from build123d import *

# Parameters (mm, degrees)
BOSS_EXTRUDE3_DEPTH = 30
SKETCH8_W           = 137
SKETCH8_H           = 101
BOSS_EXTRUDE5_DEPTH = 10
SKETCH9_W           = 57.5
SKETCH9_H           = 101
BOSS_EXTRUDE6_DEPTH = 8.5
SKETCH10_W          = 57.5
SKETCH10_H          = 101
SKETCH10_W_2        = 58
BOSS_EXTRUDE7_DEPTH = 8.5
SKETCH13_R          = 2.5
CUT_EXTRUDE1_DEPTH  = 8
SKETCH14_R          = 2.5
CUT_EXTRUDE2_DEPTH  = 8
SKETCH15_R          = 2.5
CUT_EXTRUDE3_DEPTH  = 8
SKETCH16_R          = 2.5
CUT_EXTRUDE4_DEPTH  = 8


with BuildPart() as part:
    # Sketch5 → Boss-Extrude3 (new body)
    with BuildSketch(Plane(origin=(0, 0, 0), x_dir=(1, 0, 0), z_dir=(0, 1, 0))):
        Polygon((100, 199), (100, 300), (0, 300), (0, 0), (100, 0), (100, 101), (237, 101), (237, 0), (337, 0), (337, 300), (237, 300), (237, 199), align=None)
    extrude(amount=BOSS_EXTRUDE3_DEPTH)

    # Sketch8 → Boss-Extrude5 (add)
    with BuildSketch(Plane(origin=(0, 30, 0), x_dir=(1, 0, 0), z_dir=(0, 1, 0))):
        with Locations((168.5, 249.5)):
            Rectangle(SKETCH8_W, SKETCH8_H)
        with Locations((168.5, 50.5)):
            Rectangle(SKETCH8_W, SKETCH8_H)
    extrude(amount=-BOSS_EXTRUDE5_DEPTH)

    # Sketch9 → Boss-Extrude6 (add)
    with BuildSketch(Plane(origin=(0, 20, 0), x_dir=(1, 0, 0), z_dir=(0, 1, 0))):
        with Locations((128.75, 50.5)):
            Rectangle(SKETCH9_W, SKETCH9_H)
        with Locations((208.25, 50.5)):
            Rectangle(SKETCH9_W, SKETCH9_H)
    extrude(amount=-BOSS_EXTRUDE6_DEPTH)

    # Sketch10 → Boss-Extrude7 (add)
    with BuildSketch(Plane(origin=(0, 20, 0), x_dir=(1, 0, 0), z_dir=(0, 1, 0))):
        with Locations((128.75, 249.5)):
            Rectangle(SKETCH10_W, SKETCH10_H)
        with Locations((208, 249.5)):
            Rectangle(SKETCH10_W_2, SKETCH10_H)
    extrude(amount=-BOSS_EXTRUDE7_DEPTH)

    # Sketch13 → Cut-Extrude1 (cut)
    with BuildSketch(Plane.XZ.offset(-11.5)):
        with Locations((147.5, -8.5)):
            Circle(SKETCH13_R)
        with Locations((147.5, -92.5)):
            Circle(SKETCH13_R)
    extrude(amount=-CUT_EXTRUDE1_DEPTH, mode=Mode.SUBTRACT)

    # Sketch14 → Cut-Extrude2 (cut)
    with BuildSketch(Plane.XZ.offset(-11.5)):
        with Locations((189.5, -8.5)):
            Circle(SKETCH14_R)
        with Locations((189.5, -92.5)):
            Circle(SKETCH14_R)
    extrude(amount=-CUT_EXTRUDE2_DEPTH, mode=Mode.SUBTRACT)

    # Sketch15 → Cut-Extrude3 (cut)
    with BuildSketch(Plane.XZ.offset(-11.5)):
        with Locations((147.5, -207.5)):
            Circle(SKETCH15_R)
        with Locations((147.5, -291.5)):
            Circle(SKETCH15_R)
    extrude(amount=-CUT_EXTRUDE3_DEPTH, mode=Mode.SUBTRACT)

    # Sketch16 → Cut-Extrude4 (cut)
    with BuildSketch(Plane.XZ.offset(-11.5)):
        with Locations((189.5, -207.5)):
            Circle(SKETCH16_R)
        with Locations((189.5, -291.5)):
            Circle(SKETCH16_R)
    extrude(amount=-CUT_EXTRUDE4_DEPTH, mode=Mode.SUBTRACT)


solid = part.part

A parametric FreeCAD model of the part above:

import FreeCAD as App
import Part
import Sketcher

V = App.Vector
Q = App.Units.Quantity

doc = App.newDocument("Part")
body = doc.addObject("PartDesign::Body", "Body")

# Sketch on XZ plane
sketch1 = body.newObject("Sketcher::SketchObject", "Sketch")
sketch1.AttachmentSupport = (doc.getObject("XZ_Plane"), [""])
sketch1.MapMode = "FlatFace"
sketch1.addGeometry(Part.LineSegment(V(100, -199, 0), V(100, -300, 0)), False)
sketch1.addGeometry(Part.LineSegment(V(100, -300, 0), V(0, -300, 0)), False)
sketch1.addGeometry(Part.LineSegment(V(0, -300, 0), V(0, 0, 0)), False)
sketch1.addGeometry(Part.LineSegment(V(0, 0, 0), V(100, 0, 0)), False)
sketch1.addGeometry(Part.LineSegment(V(100, 0, 0), V(100, -101, 0)), False)
sketch1.addGeometry(Part.LineSegment(V(100, -101, 0), V(237, -101, 0)), False)
sketch1.addGeometry(Part.LineSegment(V(237, -101, 0), V(237, 0, 0)), False)
sketch1.addGeometry(Part.LineSegment(V(237, 0, 0), V(337, 0, 0)), False)
sketch1.addGeometry(Part.LineSegment(V(337, 0, 0), V(337, -300, 0)), False)
sketch1.addGeometry(Part.LineSegment(V(337, -300, 0), V(237, -300, 0)), False)
sketch1.addGeometry(Part.LineSegment(V(237, -300, 0), V(237, -199, 0)), False)
sketch1.addGeometry(Part.LineSegment(V(237, -199, 0), V(100, -199, 0)), False)
sketch1.addConstraint(Sketcher.Constraint("Coincident", 0, 2, 1, 1))
sketch1.addConstraint(Sketcher.Constraint("Coincident", 1, 2, 2, 1))
sketch1.addConstraint(Sketcher.Constraint("Coincident", 2, 2, 3, 1))
sketch1.addConstraint(Sketcher.Constraint("Coincident", 3, 2, 4, 1))
sketch1.addConstraint(Sketcher.Constraint("Coincident", 4, 2, 5, 1))
sketch1.addConstraint(Sketcher.Constraint("Coincident", 5, 2, 6, 1))
sketch1.addConstraint(Sketcher.Constraint("Coincident", 6, 2, 7, 1))
sketch1.addConstraint(Sketcher.Constraint("Coincident", 7, 2, 8, 1))
sketch1.addConstraint(Sketcher.Constraint("Coincident", 8, 2, 9, 1))
sketch1.addConstraint(Sketcher.Constraint("Coincident", 9, 2, 10, 1))
sketch1.addConstraint(Sketcher.Constraint("Coincident", 10, 2, 11, 1))
sketch1.addConstraint(Sketcher.Constraint("Coincident", 11, 2, 0, 1))
sketch1.addConstraint(Sketcher.Constraint("Vertical", 0))
sketch1.addConstraint(Sketcher.Constraint("Horizontal", 1))
sketch1.addConstraint(Sketcher.Constraint("Vertical", 2))
sketch1.addConstraint(Sketcher.Constraint("Horizontal", 3))
sketch1.addConstraint(Sketcher.Constraint("Vertical", 4))
sketch1.addConstraint(Sketcher.Constraint("Horizontal", 5))
sketch1.addConstraint(Sketcher.Constraint("Vertical", 6))
sketch1.addConstraint(Sketcher.Constraint("Horizontal", 7))
sketch1.addConstraint(Sketcher.Constraint("Vertical", 8))
sketch1.addConstraint(Sketcher.Constraint("Horizontal", 9))
sketch1.addConstraint(Sketcher.Constraint("Vertical", 10))
sketch1.addConstraint(Sketcher.Constraint("Horizontal", 11))
sketch1.addConstraint(Sketcher.Constraint("Coincident", 2, 2, -1, 1))
sketch1.addConstraint(Sketcher.Constraint("PointOnObject", 6, 2, -1))
sketch1.addConstraint(Sketcher.Constraint("Horizontal", 1, 2, 8, 2))
sketch1.addConstraint(Sketcher.Constraint("Vertical", 0, 2, 3, 2))
sketch1.addConstraint(Sketcher.Constraint("Vertical", 6, 2, 9, 2))
sketch1.addConstraint(Sketcher.Constraint("Equal", 3, 7))
sketch1.addConstraint(Sketcher.Constraint("Equal", 0, 4))
sketch1.addConstraint(Sketcher.Constraint("DistanceX", 1, 2, 1, 1, Q("100 mm")))
sketch1.addConstraint(Sketcher.Constraint("DistanceX", 5, 1, 5, 2, Q("137 mm")))
sketch1.addConstraint(Sketcher.Constraint("DistanceY", 0, 2, 0, 1, Q("101 mm")))
sketch1.addConstraint(Sketcher.Constraint("DistanceY", 2, 1, 2, 2, Q("300 mm")))
pad1 = body.newObject("PartDesign::Pad", "Pad")
pad1.Profile = sketch1
pad1.Length = 30
pad1.Reversed = True

# Sketch on XZ plane
sketch2 = body.newObject("Sketcher::SketchObject", "Sketch001")
sketch2.AttachmentSupport = (doc.getObject("XZ_Plane"), [""])
sketch2.MapMode = "FlatFace"
sketch2.AttachmentOffset = App.Placement(V(0, 0, -30), App.Rotation())
sketch2.addGeometry(Part.LineSegment(V(100, -300, 0), V(100, -199, 0)), False)
sketch2.addGeometry(Part.LineSegment(V(100, -199, 0), V(237, -199, 0)), False)
sketch2.addGeometry(Part.LineSegment(V(237, -199, 0), V(237, -300, 0)), False)
sketch2.addGeometry(Part.LineSegment(V(237, -300, 0), V(100, -300, 0)), False)
sketch2.addGeometry(Part.LineSegment(V(100, -101, 0), V(100, 0, 0)), False)
sketch2.addGeometry(Part.LineSegment(V(100, 0, 0), V(237, 0, 0)), False)
sketch2.addGeometry(Part.LineSegment(V(237, 0, 0), V(237, -101, 0)), False)
sketch2.addGeometry(Part.LineSegment(V(237, -101, 0), V(100, -101, 0)), False)
sketch2.addConstraint(Sketcher.Constraint("Coincident", 0, 2, 1, 1))
sketch2.addConstraint(Sketcher.Constraint("Coincident", 1, 2, 2, 1))
sketch2.addConstraint(Sketcher.Constraint("Coincident", 2, 2, 3, 1))
sketch2.addConstraint(Sketcher.Constraint("Coincident", 3, 2, 0, 1))
sketch2.addConstraint(Sketcher.Constraint("Coincident", 4, 2, 5, 1))
sketch2.addConstraint(Sketcher.Constraint("Coincident", 5, 2, 6, 1))
sketch2.addConstraint(Sketcher.Constraint("Coincident", 6, 2, 7, 1))
sketch2.addConstraint(Sketcher.Constraint("Coincident", 7, 2, 4, 1))
sketch2.addConstraint(Sketcher.Constraint("Vertical", 0))
sketch2.addConstraint(Sketcher.Constraint("Horizontal", 1))
sketch2.addConstraint(Sketcher.Constraint("Vertical", 2))
sketch2.addConstraint(Sketcher.Constraint("Horizontal", 3))
sketch2.addConstraint(Sketcher.Constraint("Vertical", 4))
sketch2.addConstraint(Sketcher.Constraint("Horizontal", 5))
sketch2.addConstraint(Sketcher.Constraint("Vertical", 6))
sketch2.addConstraint(Sketcher.Constraint("Horizontal", 7))
sketch2.addConstraint(Sketcher.Constraint("PointOnObject", 4, 2, -1))
sketch2.addConstraint(Sketcher.Constraint("Vertical", 3, 2, 4, 2))
sketch2.addConstraint(Sketcher.Constraint("Vertical", 2, 2, 5, 2))
sketch2.addConstraint(Sketcher.Constraint("Equal", 2, 4))
sketch2.addConstraint(Sketcher.Constraint("DistanceX", 1, 1, 1, 2, Q("137 mm")))
sketch2.addConstraint(Sketcher.Constraint("DistanceY", 0, 1, 0, 2, Q("101 mm")))
sketch2.addConstraint(Sketcher.Constraint("DistanceX", -1, 1, 0, 2, Q("100 mm")))
sketch2.addConstraint(Sketcher.Constraint("DistanceY", 0, 2, -1, 1, Q("199 mm")))
pad2 = body.newObject("PartDesign::Pad", "Pad001")
pad2.Profile = sketch2
pad2.Length = 10

# Sketch on XZ plane
sketch3 = body.newObject("Sketcher::SketchObject", "Sketch002")
sketch3.AttachmentSupport = (doc.getObject("XZ_Plane"), [""])
sketch3.MapMode = "FlatFace"
sketch3.AttachmentOffset = App.Placement(V(0, 0, -20), App.Rotation())
sketch3.addGeometry(Part.LineSegment(V(100, -101, 0), V(100, 0, 0)), False)
sketch3.addGeometry(Part.LineSegment(V(100, 0, 0), V(158, 0, 0)), False)
sketch3.addGeometry(Part.LineSegment(V(158, 0, 0), V(158, -101, 0)), False)
sketch3.addGeometry(Part.LineSegment(V(158, -101, 0), V(100, -101, 0)), False)
sketch3.addGeometry(Part.LineSegment(V(180, -101, 0), V(180, 0, 0)), False)
sketch3.addGeometry(Part.LineSegment(V(180, 0, 0), V(237, 0, 0)), False)
sketch3.addGeometry(Part.LineSegment(V(237, 0, 0), V(237, -101, 0)), False)
sketch3.addGeometry(Part.LineSegment(V(237, -101, 0), V(180, -101, 0)), False)
sketch3.addConstraint(Sketcher.Constraint("Coincident", 0, 2, 1, 1))
sketch3.addConstraint(Sketcher.Constraint("Coincident", 1, 2, 2, 1))
sketch3.addConstraint(Sketcher.Constraint("Coincident", 2, 2, 3, 1))
sketch3.addConstraint(Sketcher.Constraint("Coincident", 3, 2, 0, 1))
sketch3.addConstraint(Sketcher.Constraint("Coincident", 4, 2, 5, 1))
sketch3.addConstraint(Sketcher.Constraint("Coincident", 5, 2, 6, 1))
sketch3.addConstraint(Sketcher.Constraint("Coincident", 6, 2, 7, 1))
sketch3.addConstraint(Sketcher.Constraint("Coincident", 7, 2, 4, 1))
sketch3.addConstraint(Sketcher.Constraint("Vertical", 0))
sketch3.addConstraint(Sketcher.Constraint("Horizontal", 1))
sketch3.addConstraint(Sketcher.Constraint("Vertical", 2))
sketch3.addConstraint(Sketcher.Constraint("Horizontal", 3))
sketch3.addConstraint(Sketcher.Constraint("Vertical", 4))
sketch3.addConstraint(Sketcher.Constraint("Horizontal", 5))
sketch3.addConstraint(Sketcher.Constraint("Vertical", 6))
sketch3.addConstraint(Sketcher.Constraint("Horizontal", 7))
sketch3.addConstraint(Sketcher.Constraint("PointOnObject", 0, 2, -1))
sketch3.addConstraint(Sketcher.Constraint("PointOnObject", 4, 2, -1))
sketch3.addConstraint(Sketcher.Constraint("Horizontal", 3, 2, 6, 2))
sketch3.addConstraint(Sketcher.Constraint("Equal", 3, 5))
sketch3.addConstraint(Sketcher.Constraint("DistanceY", 0, 1, 0, 2, Q("101 mm")))
sketch3.addConstraint(Sketcher.Constraint("DistanceX", 1, 1, 1, 2, Q("57.5 mm")))
sketch3.addConstraint(Sketcher.Constraint("DistanceX", -1, 1, 0, 2, Q("100 mm")))
sketch3.addConstraint(Sketcher.Constraint("DistanceX", -1, 1, 5, 2, Q("237 mm")))
pad3 = body.newObject("PartDesign::Pad", "Pad002")
pad3.Profile = sketch3
pad3.Length = 8.5

# Sketch on XZ plane
sketch4 = body.newObject("Sketcher::SketchObject", "Sketch003")
sketch4.AttachmentSupport = (doc.getObject("XZ_Plane"), [""])
sketch4.MapMode = "FlatFace"
sketch4.AttachmentOffset = App.Placement(V(0, 0, -20), App.Rotation())
sketch4.addGeometry(Part.LineSegment(V(100, -300, 0), V(100, -199, 0)), False)
sketch4.addGeometry(Part.LineSegment(V(100, -199, 0), V(158, -199, 0)), False)
sketch4.addGeometry(Part.LineSegment(V(158, -199, 0), V(158, -300, 0)), False)
sketch4.addGeometry(Part.LineSegment(V(158, -300, 0), V(100, -300, 0)), False)
sketch4.addGeometry(Part.LineSegment(V(179, -300, 0), V(179, -199, 0)), False)
sketch4.addGeometry(Part.LineSegment(V(179, -199, 0), V(237, -199, 0)), False)
sketch4.addGeometry(Part.LineSegment(V(237, -199, 0), V(237, -300, 0)), False)
sketch4.addGeometry(Part.LineSegment(V(237, -300, 0), V(179, -300, 0)), False)
sketch4.addConstraint(Sketcher.Constraint("Coincident", 0, 2, 1, 1))
sketch4.addConstraint(Sketcher.Constraint("Coincident", 1, 2, 2, 1))
sketch4.addConstraint(Sketcher.Constraint("Coincident", 2, 2, 3, 1))
sketch4.addConstraint(Sketcher.Constraint("Coincident", 3, 2, 0, 1))
sketch4.addConstraint(Sketcher.Constraint("Coincident", 4, 2, 5, 1))
sketch4.addConstraint(Sketcher.Constraint("Coincident", 5, 2, 6, 1))
sketch4.addConstraint(Sketcher.Constraint("Coincident", 6, 2, 7, 1))
sketch4.addConstraint(Sketcher.Constraint("Coincident", 7, 2, 4, 1))
sketch4.addConstraint(Sketcher.Constraint("Vertical", 0))
sketch4.addConstraint(Sketcher.Constraint("Horizontal", 1))
sketch4.addConstraint(Sketcher.Constraint("Vertical", 2))
sketch4.addConstraint(Sketcher.Constraint("Horizontal", 3))
sketch4.addConstraint(Sketcher.Constraint("Vertical", 4))
sketch4.addConstraint(Sketcher.Constraint("Horizontal", 5))
sketch4.addConstraint(Sketcher.Constraint("Vertical", 6))
sketch4.addConstraint(Sketcher.Constraint("Horizontal", 7))
sketch4.addConstraint(Sketcher.Constraint("Horizontal", 1, 2, 4, 2))
sketch4.addConstraint(Sketcher.Constraint("Horizontal", 3, 2, 6, 2))
sketch4.addConstraint(Sketcher.Constraint("DistanceX", 5, 1, 5, 2, Q("58 mm")))
sketch4.addConstraint(Sketcher.Constraint("DistanceY", 0, 1, 0, 2, Q("101 mm")))
sketch4.addConstraint(Sketcher.Constraint("DistanceX", 1, 1, 1, 2, Q("57.5 mm")))
sketch4.addConstraint(Sketcher.Constraint("DistanceX", -1, 1, 0, 2, Q("100 mm")))
sketch4.addConstraint(Sketcher.Constraint("DistanceY", 0, 2, -1, 1, Q("199 mm")))
sketch4.addConstraint(Sketcher.Constraint("DistanceX", -1, 1, 4, 2, Q("179 mm")))
pad4 = body.newObject("PartDesign::Pad", "Pad003")
pad4.Profile = sketch4
pad4.Length = 8.5

# Sketch on XZ plane
sketch5 = body.newObject("Sketcher::SketchObject", "Sketch004")
sketch5.AttachmentSupport = (doc.getObject("XZ_Plane"), [""])
sketch5.MapMode = "FlatFace"
sketch5.AttachmentOffset = App.Placement(V(0, 0, -11.5), App.Rotation())
sketch5.addGeometry(Part.Circle(V(147.5, -8.5, 0), V(0, 0, 1), 2.5), False)
sketch5.addGeometry(Part.Circle(V(147.5, -92.5, 0), V(0, 0, 1), 2.5), False)
sketch5.addConstraint(Sketcher.Constraint("Equal", 0, 1))
sketch5.addConstraint(Sketcher.Constraint("Vertical", 0, 3, 1, 3))
sketch5.addConstraint(Sketcher.Constraint("Diameter", 0, Q("5 mm")))
sketch5.addConstraint(Sketcher.Constraint("DistanceY", 1, 3, 0, 3, Q("84 mm")))
sketch5.addConstraint(Sketcher.Constraint("DistanceX", -1, 1, 0, 3, Q("147.5 mm")))
sketch5.addConstraint(Sketcher.Constraint("DistanceY", 0, 3, -1, 1, Q("8.5 mm")))
pocket1 = body.newObject("PartDesign::Pocket", "Pocket")
pocket1.Profile = sketch5
pocket1.Length = 8

# Sketch on XZ plane
sketch6 = body.newObject("Sketcher::SketchObject", "Sketch005")
sketch6.AttachmentSupport = (doc.getObject("XZ_Plane"), [""])
sketch6.MapMode = "FlatFace"
sketch6.AttachmentOffset = App.Placement(V(0, 0, -11.5), App.Rotation())
sketch6.addGeometry(Part.Circle(V(189.5, -8.5, 0), V(0, 0, 1), 2.5), False)
sketch6.addGeometry(Part.Circle(V(189.5, -92.5, 0), V(0, 0, 1), 2.5), False)
sketch6.addConstraint(Sketcher.Constraint("Equal", 0, 1))
sketch6.addConstraint(Sketcher.Constraint("Vertical", 0, 3, 1, 3))
sketch6.addConstraint(Sketcher.Constraint("Diameter", 0, Q("5 mm")))
sketch6.addConstraint(Sketcher.Constraint("DistanceY", 1, 3, 0, 3, Q("84 mm")))
sketch6.addConstraint(Sketcher.Constraint("DistanceX", -1, 1, 0, 3, Q("189.5 mm")))
sketch6.addConstraint(Sketcher.Constraint("DistanceY", 0, 3, -1, 1, Q("8.5 mm")))
pocket2 = body.newObject("PartDesign::Pocket", "Pocket001")
pocket2.Profile = sketch6
pocket2.Length = 8

# Sketch on XZ plane
sketch7 = body.newObject("Sketcher::SketchObject", "Sketch006")
sketch7.AttachmentSupport = (doc.getObject("XZ_Plane"), [""])
sketch7.MapMode = "FlatFace"
sketch7.AttachmentOffset = App.Placement(V(0, 0, -11.5), App.Rotation())
sketch7.addGeometry(Part.Circle(V(147.5, -207.5, 0), V(0, 0, 1), 2.5), False)
sketch7.addGeometry(Part.Circle(V(147.5, -291.5, 0), V(0, 0, 1), 2.5), False)
sketch7.addConstraint(Sketcher.Constraint("Equal", 0, 1))
sketch7.addConstraint(Sketcher.Constraint("Vertical", 0, 3, 1, 3))
sketch7.addConstraint(Sketcher.Constraint("Diameter", 0, Q("5 mm")))
sketch7.addConstraint(Sketcher.Constraint("DistanceY", 1, 3, 0, 3, Q("84 mm")))
sketch7.addConstraint(Sketcher.Constraint("DistanceX", -1, 1, 0, 3, Q("147.5 mm")))
sketch7.addConstraint(Sketcher.Constraint("DistanceY", 0, 3, -1, 1, Q("207.5 mm")))
pocket3 = body.newObject("PartDesign::Pocket", "Pocket002")
pocket3.Profile = sketch7
pocket3.Length = 8

# Sketch on XZ plane
sketch8 = body.newObject("Sketcher::SketchObject", "Sketch007")
sketch8.AttachmentSupport = (doc.getObject("XZ_Plane"), [""])
sketch8.MapMode = "FlatFace"
sketch8.AttachmentOffset = App.Placement(V(0, 0, -11.5), App.Rotation())
sketch8.addGeometry(Part.Circle(V(189.5, -207.5, 0), V(0, 0, 1), 2.5), False)
sketch8.addGeometry(Part.Circle(V(189.5, -291.5, 0), V(0, 0, 1), 2.5), False)
sketch8.addConstraint(Sketcher.Constraint("Equal", 0, 1))
sketch8.addConstraint(Sketcher.Constraint("Vertical", 0, 3, 1, 3))
sketch8.addConstraint(Sketcher.Constraint("Diameter", 0, Q("5 mm")))
sketch8.addConstraint(Sketcher.Constraint("DistanceY", 1, 3, 0, 3, Q("84 mm")))
sketch8.addConstraint(Sketcher.Constraint("DistanceX", -1, 1, 0, 3, Q("189.5 mm")))
sketch8.addConstraint(Sketcher.Constraint("DistanceY", 0, 3, -1, 1, Q("207.5 mm")))
pocket4 = body.newObject("PartDesign::Pocket", "Pocket003")
pocket4.Profile = sketch8
pocket4.Length = 8

doc.recompute()
